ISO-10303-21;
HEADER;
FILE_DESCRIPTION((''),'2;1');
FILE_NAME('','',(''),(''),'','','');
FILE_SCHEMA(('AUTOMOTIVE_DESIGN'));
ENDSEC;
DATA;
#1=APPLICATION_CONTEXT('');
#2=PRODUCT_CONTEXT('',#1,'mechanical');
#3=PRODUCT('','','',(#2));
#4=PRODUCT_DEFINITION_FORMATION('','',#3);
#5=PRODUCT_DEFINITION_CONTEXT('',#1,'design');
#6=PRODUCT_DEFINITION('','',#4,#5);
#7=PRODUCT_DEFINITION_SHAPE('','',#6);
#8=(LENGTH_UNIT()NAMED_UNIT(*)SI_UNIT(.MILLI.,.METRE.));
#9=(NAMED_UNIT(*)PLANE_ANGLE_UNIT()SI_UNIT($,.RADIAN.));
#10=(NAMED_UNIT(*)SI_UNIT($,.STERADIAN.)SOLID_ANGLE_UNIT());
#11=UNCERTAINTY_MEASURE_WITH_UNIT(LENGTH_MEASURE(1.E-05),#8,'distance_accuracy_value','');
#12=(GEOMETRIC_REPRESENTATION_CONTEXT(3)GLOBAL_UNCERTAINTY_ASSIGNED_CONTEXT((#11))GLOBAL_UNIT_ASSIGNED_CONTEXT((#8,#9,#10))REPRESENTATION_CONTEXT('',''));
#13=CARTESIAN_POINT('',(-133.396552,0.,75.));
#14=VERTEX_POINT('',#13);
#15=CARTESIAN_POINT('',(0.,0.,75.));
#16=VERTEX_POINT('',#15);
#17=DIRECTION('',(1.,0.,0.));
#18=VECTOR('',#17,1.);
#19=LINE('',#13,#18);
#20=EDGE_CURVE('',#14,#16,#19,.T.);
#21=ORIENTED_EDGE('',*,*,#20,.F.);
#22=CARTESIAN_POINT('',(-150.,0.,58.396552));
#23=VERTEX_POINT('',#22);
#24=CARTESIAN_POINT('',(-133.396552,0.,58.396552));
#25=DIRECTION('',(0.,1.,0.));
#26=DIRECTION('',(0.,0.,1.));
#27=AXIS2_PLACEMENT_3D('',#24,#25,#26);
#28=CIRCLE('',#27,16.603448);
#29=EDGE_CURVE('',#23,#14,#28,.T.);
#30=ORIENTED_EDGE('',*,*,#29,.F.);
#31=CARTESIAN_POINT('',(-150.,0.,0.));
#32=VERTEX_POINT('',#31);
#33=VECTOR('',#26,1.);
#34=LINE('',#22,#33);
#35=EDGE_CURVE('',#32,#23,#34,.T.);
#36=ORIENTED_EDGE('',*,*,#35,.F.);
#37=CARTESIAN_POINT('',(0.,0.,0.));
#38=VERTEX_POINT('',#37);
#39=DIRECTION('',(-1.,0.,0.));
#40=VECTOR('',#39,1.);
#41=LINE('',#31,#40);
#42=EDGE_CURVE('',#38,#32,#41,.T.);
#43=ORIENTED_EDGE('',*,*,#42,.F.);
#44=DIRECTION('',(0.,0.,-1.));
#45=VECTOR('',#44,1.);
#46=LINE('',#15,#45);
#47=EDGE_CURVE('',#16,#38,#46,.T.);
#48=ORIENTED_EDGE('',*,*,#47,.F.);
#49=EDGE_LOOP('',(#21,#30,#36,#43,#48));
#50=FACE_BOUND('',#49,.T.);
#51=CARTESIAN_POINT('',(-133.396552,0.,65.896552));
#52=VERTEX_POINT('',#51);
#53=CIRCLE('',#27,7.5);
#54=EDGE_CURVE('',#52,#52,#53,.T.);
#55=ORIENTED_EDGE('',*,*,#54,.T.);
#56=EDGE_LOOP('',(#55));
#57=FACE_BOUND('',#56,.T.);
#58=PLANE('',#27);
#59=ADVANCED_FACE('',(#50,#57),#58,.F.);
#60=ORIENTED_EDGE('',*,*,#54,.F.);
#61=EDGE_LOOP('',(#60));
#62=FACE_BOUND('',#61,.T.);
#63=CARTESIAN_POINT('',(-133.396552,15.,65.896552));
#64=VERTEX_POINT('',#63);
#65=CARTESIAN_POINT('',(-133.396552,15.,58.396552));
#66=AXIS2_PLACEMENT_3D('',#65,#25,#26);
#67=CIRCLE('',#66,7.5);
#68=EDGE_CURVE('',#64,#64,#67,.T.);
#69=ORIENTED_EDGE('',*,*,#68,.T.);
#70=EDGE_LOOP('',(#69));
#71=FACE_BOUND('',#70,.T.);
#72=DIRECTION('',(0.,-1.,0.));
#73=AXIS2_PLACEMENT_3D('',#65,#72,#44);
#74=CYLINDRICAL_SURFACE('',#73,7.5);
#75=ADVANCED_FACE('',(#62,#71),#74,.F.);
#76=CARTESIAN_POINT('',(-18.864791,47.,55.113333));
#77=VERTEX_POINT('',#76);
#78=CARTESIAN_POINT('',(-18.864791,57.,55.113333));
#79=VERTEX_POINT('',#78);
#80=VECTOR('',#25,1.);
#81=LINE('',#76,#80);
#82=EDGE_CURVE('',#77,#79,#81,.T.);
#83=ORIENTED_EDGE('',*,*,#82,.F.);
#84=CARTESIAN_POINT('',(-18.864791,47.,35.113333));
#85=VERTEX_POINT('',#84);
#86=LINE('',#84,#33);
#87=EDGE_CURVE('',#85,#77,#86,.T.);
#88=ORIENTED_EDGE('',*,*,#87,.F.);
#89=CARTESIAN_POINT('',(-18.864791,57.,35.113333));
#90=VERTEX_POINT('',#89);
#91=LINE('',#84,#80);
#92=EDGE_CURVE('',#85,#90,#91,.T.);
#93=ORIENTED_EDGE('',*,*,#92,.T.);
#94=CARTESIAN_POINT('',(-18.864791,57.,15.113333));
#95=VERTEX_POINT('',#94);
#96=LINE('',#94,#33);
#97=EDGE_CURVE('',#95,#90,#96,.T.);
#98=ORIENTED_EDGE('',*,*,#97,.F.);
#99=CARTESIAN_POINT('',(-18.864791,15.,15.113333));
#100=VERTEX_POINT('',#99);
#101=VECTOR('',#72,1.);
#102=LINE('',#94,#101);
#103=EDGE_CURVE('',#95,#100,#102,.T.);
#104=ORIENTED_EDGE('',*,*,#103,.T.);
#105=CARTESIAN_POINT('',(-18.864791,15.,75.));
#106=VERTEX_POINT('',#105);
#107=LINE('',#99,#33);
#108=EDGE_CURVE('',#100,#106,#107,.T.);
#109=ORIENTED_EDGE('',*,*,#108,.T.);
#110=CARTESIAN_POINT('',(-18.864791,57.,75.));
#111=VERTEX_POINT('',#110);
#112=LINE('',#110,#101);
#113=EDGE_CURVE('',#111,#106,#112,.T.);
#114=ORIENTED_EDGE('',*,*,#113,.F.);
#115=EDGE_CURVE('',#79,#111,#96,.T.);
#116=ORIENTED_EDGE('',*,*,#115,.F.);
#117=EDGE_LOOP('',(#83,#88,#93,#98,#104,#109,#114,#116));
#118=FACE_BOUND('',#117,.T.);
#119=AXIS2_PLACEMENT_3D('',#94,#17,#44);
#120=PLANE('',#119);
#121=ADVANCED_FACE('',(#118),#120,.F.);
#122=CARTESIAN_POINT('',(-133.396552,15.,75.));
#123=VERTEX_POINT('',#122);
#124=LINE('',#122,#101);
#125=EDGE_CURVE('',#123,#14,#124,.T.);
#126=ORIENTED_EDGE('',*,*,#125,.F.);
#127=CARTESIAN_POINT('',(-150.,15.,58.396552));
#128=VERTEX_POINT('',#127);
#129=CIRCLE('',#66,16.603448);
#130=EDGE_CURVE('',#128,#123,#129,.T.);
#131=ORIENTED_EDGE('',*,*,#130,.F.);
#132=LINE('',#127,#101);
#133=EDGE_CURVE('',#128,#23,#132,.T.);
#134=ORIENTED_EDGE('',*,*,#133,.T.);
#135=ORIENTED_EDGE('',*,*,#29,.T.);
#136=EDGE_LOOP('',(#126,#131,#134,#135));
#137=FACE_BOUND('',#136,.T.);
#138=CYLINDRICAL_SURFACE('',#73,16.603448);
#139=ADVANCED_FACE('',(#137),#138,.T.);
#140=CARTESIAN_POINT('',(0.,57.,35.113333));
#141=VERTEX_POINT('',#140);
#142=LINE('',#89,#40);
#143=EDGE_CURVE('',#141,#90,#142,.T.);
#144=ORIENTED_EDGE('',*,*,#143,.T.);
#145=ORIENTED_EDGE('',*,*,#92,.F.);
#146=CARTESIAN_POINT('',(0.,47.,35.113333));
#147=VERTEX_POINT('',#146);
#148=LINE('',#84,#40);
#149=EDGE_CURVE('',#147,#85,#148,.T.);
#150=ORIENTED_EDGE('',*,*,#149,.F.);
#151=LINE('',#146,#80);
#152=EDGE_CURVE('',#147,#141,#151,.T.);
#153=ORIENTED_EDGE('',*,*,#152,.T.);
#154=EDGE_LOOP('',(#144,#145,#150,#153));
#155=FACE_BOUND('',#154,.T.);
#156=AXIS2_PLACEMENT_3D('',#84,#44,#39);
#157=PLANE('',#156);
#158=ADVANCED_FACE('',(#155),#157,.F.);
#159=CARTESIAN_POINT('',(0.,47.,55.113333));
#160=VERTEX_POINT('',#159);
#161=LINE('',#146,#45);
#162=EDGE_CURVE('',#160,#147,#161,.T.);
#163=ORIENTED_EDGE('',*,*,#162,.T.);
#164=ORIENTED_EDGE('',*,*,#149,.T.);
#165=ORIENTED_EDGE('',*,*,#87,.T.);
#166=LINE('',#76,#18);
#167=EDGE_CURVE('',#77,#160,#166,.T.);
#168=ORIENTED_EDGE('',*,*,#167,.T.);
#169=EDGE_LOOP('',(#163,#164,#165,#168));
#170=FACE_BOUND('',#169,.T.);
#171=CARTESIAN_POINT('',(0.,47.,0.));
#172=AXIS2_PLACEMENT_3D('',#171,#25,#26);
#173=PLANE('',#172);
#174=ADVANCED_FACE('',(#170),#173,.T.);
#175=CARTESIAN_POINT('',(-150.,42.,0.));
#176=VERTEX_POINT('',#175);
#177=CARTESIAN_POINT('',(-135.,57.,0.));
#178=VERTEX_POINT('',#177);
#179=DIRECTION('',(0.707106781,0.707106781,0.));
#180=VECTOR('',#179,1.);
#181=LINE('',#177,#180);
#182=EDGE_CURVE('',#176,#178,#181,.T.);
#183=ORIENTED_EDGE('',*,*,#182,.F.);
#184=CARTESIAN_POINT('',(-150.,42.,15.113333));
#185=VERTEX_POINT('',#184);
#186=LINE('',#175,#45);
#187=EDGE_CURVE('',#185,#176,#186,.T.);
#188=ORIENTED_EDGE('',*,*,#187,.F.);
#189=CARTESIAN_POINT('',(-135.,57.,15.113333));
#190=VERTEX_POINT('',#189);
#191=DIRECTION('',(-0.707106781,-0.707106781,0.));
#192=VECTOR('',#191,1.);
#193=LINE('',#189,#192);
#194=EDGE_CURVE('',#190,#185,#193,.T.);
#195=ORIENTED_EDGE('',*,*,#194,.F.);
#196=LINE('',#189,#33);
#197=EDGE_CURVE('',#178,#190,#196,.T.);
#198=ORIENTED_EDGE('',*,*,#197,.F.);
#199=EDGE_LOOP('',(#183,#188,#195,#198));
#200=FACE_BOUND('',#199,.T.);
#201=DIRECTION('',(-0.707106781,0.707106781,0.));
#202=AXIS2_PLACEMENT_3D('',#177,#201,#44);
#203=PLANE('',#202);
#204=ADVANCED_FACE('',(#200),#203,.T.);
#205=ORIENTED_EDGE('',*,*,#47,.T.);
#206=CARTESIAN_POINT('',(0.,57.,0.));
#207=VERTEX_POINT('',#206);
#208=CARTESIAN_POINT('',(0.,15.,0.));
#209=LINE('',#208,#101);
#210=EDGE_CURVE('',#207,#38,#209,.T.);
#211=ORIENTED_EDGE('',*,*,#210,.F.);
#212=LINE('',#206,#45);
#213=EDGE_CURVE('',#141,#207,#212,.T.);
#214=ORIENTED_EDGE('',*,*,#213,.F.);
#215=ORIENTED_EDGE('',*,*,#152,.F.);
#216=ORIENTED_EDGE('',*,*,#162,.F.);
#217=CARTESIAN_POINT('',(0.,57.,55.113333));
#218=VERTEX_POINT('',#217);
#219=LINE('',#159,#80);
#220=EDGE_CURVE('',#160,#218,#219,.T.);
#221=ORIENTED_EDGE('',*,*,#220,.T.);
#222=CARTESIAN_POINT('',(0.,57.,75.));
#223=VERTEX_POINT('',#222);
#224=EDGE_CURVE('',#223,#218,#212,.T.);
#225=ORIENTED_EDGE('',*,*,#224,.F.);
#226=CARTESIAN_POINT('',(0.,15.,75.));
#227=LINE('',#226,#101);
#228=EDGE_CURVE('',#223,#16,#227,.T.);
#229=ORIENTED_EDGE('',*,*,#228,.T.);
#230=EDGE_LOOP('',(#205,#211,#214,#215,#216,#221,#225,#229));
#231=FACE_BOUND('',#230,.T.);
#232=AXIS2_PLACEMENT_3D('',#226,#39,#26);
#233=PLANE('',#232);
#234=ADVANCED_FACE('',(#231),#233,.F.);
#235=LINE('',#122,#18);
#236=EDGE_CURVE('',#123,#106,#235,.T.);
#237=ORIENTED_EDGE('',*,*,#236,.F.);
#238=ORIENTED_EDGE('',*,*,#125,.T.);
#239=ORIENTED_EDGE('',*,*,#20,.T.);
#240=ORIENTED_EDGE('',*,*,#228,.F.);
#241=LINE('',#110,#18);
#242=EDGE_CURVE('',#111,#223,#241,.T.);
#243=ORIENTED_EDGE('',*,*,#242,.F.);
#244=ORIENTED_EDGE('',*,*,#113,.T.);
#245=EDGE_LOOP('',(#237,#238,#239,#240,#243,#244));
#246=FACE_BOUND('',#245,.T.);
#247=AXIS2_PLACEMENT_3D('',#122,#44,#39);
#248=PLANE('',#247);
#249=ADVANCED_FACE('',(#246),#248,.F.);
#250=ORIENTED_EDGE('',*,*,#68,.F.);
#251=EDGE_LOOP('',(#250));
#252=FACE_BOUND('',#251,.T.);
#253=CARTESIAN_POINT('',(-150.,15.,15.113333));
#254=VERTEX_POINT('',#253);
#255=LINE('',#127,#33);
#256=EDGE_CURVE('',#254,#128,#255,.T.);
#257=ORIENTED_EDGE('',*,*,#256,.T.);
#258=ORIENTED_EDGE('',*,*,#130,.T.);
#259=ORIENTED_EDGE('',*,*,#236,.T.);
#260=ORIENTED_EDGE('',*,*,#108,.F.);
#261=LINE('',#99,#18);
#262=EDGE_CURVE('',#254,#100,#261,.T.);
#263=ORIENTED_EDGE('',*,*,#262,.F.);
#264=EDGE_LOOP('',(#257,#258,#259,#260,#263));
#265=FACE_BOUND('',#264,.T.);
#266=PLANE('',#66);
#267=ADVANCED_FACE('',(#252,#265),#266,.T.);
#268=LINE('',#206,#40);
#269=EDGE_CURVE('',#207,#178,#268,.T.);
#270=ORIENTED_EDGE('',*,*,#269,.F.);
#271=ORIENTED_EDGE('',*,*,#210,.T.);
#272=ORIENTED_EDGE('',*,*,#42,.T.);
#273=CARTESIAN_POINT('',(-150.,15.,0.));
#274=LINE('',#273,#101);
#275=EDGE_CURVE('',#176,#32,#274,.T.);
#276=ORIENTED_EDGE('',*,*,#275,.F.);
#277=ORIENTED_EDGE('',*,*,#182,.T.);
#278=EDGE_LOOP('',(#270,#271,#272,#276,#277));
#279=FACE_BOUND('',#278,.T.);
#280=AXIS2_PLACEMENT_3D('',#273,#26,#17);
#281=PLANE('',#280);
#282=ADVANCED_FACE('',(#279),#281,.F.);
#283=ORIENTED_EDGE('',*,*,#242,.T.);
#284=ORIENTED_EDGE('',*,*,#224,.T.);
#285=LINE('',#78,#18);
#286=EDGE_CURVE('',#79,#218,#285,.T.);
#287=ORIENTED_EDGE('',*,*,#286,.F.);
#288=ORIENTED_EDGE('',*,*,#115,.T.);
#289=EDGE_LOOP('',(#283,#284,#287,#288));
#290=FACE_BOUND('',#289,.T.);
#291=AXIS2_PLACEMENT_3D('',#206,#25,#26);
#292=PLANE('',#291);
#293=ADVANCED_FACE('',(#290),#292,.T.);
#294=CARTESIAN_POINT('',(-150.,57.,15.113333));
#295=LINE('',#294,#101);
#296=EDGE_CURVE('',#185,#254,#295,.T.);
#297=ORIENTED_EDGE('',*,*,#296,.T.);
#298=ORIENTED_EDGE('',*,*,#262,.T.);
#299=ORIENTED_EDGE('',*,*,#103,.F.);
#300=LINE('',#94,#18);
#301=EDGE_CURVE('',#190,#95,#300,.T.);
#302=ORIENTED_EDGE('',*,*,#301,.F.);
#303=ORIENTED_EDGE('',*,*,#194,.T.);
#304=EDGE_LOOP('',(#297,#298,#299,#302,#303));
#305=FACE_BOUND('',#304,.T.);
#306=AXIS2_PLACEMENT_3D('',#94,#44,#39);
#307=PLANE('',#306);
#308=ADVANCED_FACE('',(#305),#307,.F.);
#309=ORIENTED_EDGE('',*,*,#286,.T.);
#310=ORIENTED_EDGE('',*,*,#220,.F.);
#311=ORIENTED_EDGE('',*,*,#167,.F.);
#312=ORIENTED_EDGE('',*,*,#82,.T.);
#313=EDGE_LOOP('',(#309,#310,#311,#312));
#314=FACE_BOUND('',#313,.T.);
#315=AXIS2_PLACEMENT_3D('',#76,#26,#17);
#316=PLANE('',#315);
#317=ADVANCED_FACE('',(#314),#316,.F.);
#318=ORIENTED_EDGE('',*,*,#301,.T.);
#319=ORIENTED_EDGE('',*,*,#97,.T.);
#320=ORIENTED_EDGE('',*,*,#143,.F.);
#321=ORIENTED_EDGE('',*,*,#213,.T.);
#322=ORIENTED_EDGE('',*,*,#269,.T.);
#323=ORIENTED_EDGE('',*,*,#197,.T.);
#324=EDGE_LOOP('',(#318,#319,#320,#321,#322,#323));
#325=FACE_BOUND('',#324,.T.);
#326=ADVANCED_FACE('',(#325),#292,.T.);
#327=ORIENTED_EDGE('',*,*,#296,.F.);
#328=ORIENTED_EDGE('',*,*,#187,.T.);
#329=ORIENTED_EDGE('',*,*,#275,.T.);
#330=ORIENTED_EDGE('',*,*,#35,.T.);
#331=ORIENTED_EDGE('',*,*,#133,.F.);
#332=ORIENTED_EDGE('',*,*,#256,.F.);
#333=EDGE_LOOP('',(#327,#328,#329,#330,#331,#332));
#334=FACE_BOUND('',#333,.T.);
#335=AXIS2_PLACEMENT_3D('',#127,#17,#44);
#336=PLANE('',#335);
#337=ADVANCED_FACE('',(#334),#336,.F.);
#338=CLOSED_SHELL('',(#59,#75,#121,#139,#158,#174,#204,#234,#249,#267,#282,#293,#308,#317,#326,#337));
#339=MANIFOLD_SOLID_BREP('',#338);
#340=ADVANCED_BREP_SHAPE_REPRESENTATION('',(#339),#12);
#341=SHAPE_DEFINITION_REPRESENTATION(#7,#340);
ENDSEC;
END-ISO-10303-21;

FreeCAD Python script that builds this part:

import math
import FreeCAD as App
import Part
import Sketcher

V = App.Vector


def edges_at(feature, points):
    """Names of the edges that pass closest to the given points."""
    edges = feature.Shape.Edges
    near = lambda p: min(range(len(edges)), key=lambda i: edges[i].distToShape(Part.Vertex(*p))[0])
    return sorted({f"Edge{near(p) + 1}" for p in points})


def add_polygon(sketch, points):
    """Adds a closed chain of lines whose ends are joined by coincident constraints."""
    first, n = sketch.GeometryCount, len(points)
    for a, b in zip(points, points[1:] + points[:1]):
        sketch.addGeometry(Part.LineSegment(App.Vector(*a, 0), App.Vector(*b, 0)), False)
    for i in range(n):
        sketch.addConstraint(Sketcher.Constraint("Coincident", first + i, 2, first + (i + 1) % n, 1))

doc = App.newDocument("Part")
params = doc.addObject("Spreadsheet::Sheet", "Params")
for row, (alias, value) in enumerate([
    ("sketch1_diameter", "15 mm"),
    ("sketch1_width", "150 mm"),
    ("sketch1_height", "75 mm"),
    ("pad1_length", "15 mm"),
    ("sketch2_width", "150 mm"),
    ("sketch2_height", "75 mm"),
    ("pad2_length", "42 mm"),
    ("chamfer_size", "15 mm"),
    ("sketch3_height", "20 mm"),
    ("pocket1_length", "10 mm"),
], start=1):
    params.set(f"A{row}", alias)
    params.set(f"B{row}", "=" + value)
    params.setAlias(f"B{row}", alias)

body = doc.addObject("PartDesign::Body", "Body")

sketch1 = body.newObject("Sketcher::SketchObject", "Sketch")
sketch1.AttachmentSupport = (doc.getObject("XZ_Plane"), [""])
sketch1.MapMode = "FlatFace"
sketch1.addGeometry(Part.LineSegment(V(-133, 75, 0), V(0, 75, 0)), False)
sketch1.addGeometry(Part.LineSegment(V(0, 75, 0), V(0, 0, 0)), False)
sketch1.addGeometry(Part.LineSegment(V(0, 0, 0), V(-150, 0, 0)), False)
sketch1.addGeometry(Part.LineSegment(V(-150, 0, 0), V(-150, 58, 0)), False)
sketch1.addGeometry(Part.ArcOfCircle(Part.Circle(V(-133, 58, 0), V(0, 0, 1), 17), math.radians(90), math.radians(180)), False)
sketch1.addGeometry(Part.Circle(V(-133, 58, 0), V(0, 0, 1), 8), False)
sketch1.addConstraint(Sketcher.Constraint("Coincident", 0, 2, 1, 1))
sketch1.addConstraint(Sketcher.Constraint("Coincident", 1, 2, 2, 1))
sketch1.addConstraint(Sketcher.Constraint("Coincident", 2, 2, 3, 1))
sketch1.addConstraint(Sketcher.Constraint("Tangent", 3, 2, 4, 2))
sketch1.addConstraint(Sketcher.Constraint("Tangent", 4, 1, 0, 1))
sketch1.addConstraint(Sketcher.Constraint("Horizontal", 0))
sketch1.addConstraint(Sketcher.Constraint("Vertical", 1))
sketch1.addConstraint(Sketcher.Constraint("Horizontal", 2))
sketch1.addConstraint(Sketcher.Constraint("Vertical", 3))
sketch1.addConstraint(Sketcher.Constraint("Coincident", 1, 2, -1, 1))
sketch1.addConstraint(Sketcher.Constraint("Coincident", 5, 3, 4, 3))
sketch1.addConstraint(Sketcher.Constraint("Diameter", 5, 15.0))
sketch1.addConstraint(Sketcher.Constraint("DistanceX", 2, 2, 2, 1, 150.0))
sketch1.addConstraint(Sketcher.Constraint("DistanceY", 1, 2, 1, 1, 75.0))
sketch1.addConstraint(Sketcher.Constraint("Radius", 4, 16.603448))
sketch1.setExpression("Constraints[11]", "Params.sketch1_diameter")
sketch1.setExpression("Constraints[12]", "Params.sketch1_width")
sketch1.setExpression("Constraints[13]", "Params.sketch1_height")
pad1 = body.newObject("PartDesign::Pad", "Pad")
pad1.Profile = sketch1
pad1.setExpression("Length", "Params.pad1_length")
pad1.Reversed = True

sketch2 = body.newObject("Sketcher::SketchObject", "Sketch001")
sketch2.AttachmentSupport = (doc.getObject("XZ_Plane"), [""])
sketch2.MapMode = "FlatFace"
sketch2.AttachmentOffset = App.Placement(V(0, 0, -15), App.Rotation())
add_polygon(sketch2, [(0, 0), (-150, 0), (-150, 15), (-19, 15), (-19, 75), (0, 75)])
sketch2.addConstraint(Sketcher.Constraint("Horizontal", 0))
sketch2.addConstraint(Sketcher.Constraint("Vertical", 1))
sketch2.addConstraint(Sketcher.Constraint("Horizontal", 2))
sketch2.addConstraint(Sketcher.Constraint("Vertical", 3))
sketch2.addConstraint(Sketcher.Constraint("Horizontal", 4))
sketch2.addConstraint(Sketcher.Constraint("Vertical", 5))
sketch2.addConstraint(Sketcher.Constraint("Coincident", 5, 2, -1, 1))
sketch2.addConstraint(Sketcher.Constraint("DistanceX", 0, 2, 0, 1, 150.0))
sketch2.addConstraint(Sketcher.Constraint("DistanceY", 5, 2, 5, 1, 75.0))
sketch2.addConstraint(Sketcher.Constraint("DistanceX", 2, 1, 2, 2, 131.135209))
sketch2.addConstraint(Sketcher.Constraint("DistanceY", 1, 1, 1, 2, 15.113333))
sketch2.setExpression("Constraints[13]", "Params.sketch2_width")
sketch2.setExpression("Constraints[14]", "Params.sketch2_height")
pad2 = body.newObject("PartDesign::Pad", "Pad001")
pad2.Profile = sketch2
pad2.setExpression("Length", "Params.pad2_length")
pad2.Reversed = True
doc.recompute()

chamfer = body.newObject("PartDesign::Chamfer", "Chamfer")
chamfer.Base = (pad2, edges_at(pad2, [(-150, 57, 7.557)]))
chamfer.setExpression("Size", "Params.chamfer_size")

sketch3 = body.newObject("Sketcher::SketchObject", "Sketch002")
sketch3.AttachmentSupport = (doc.getObject("XZ_Plane"), [""])
sketch3.MapMode = "FlatFace"
sketch3.AttachmentOffset = App.Placement(V(0, 0, -57), App.Rotation())
add_polygon(sketch3, [(-19, 35), (-19, 55), (0, 55), (0, 35)])
sketch3.addConstraint(Sketcher.Constraint("Vertical", 0))
sketch3.addConstraint(Sketcher.Constraint("Horizontal", 1))
sketch3.addConstraint(Sketcher.Constraint("Vertical", 2))
sketch3.addConstraint(Sketcher.Constraint("Horizontal", 3))
sketch3.addConstraint(Sketcher.Constraint("PointOnObject", 1, 2, -2))
sketch3.addConstraint(Sketcher.Constraint("DistanceY", 0, 1, 0, 2, 20.0))
sketch3.addConstraint(Sketcher.Constraint("DistanceX", 1, 1, 1, 2, 18.864791))
sketch3.addConstraint(Sketcher.Constraint("DistanceY", -1, 1, 0, 2, 55.113333))
sketch3.setExpression("Constraints[9]", "Params.sketch3_height")
pocket1 = body.newObject("PartDesign::Pocket", "Pocket")
pocket1.Profile = sketch3
pocket1.setExpression("Length", "Params.pocket1_length")
pocket1.Reversed = True

doc.recompute()
